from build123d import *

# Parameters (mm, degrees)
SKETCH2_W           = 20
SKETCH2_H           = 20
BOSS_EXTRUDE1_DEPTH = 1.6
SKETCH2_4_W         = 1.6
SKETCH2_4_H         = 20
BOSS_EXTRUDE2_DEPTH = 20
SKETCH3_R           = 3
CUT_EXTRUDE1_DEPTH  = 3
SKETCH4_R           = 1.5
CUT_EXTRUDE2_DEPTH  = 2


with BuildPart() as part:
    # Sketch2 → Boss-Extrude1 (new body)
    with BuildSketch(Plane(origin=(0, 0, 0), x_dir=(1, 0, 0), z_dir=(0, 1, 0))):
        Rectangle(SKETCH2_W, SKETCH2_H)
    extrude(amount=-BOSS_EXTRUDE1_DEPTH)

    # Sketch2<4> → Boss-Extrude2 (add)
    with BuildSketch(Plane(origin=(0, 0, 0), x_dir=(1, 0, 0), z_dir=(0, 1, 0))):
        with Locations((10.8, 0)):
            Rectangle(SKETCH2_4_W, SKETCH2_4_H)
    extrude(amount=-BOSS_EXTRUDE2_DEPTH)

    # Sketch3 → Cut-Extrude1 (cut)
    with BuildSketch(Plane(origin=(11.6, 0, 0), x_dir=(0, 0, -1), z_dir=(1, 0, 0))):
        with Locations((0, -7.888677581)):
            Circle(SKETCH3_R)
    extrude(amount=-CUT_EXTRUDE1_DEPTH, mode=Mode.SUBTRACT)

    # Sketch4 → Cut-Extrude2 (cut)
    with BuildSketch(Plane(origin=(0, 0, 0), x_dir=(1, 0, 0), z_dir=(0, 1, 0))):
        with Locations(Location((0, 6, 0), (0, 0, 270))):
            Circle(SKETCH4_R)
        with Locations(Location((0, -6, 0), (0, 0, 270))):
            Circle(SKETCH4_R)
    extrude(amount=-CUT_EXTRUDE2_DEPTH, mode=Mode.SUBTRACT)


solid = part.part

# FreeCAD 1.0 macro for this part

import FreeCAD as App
import Part
import Sketcher
Q = App.Units.Quantity

doc = App.newDocument("Part")
body = doc.addObject("PartDesign::Body", "Body")

sketch1 = doc.addObject("Sketcher::SketchObject", "Sketch")
body.addObject(sketch1)
sketch1.AttachmentSupport = (doc.XZ_Plane, [""])
sketch1.MapMode = "FlatFace"
sketch1.addGeometry([
    Part.LineSegment(App.Vector(-10, -10, 0), App.Vector(-10, 10, 0)),
    Part.LineSegment(App.Vector(-10, 10, 0), App.Vector(10, 10, 0)),
    Part.LineSegment(App.Vector(10, 10, 0), App.Vector(10, -10, 0)),
    Part.LineSegment(App.Vector(10, -10, 0), App.Vector(-10, -10, 0)),
], False)
sketch1.addConstraint([
    Sketcher.Constraint("Coincident", 0, 2, 1, 1),
    Sketcher.Constraint("Coincident", 1, 2, 2, 1),
    Sketcher.Constraint("Coincident", 2, 2, 3, 1),
    Sketcher.Constraint("Coincident", 3, 2, 0, 1),
    Sketcher.Constraint("Vertical", 0),
    Sketcher.Constraint("Horizontal", 1),
    Sketcher.Constraint("Vertical", 2),
    Sketcher.Constraint("Horizontal", 3),
    Sketcher.Constraint("Symmetric", 0, 2, 2, 2, -1, 1),
    Sketcher.Constraint("Equal", 3, 0),
    Sketcher.Constraint("DistanceX", 1, 1, 1, 2, Q("20 mm")),
])
pad1 = doc.addObject("PartDesign::Pad", "Pad")
body.addObject(pad1)
pad1.Profile = sketch1
pad1.Length = 1.6

sketch2 = doc.addObject("Sketcher::SketchObject", "Sketch001")
body.addObject(sketch2)
sketch2.AttachmentSupport = (doc.XZ_Plane, [""])
sketch2.MapMode = "FlatFace"
sketch2.addGeometry([
    Part.LineSegment(App.Vector(10, -10, 0), App.Vector(10, 10, 0)),
    Part.LineSegment(App.Vector(10, 10, 0), App.Vector(11.6, 10, 0)),
    Part.LineSegment(App.Vector(11.6, 10, 0), App.Vector(11.6, -10, 0)),
    Part.LineSegment(App.Vector(11.6, -10, 0), App.Vector(10, -10, 0)),
], False)
sketch2.addConstraint([
    Sketcher.Constraint("Coincident", 0, 2, 1, 1),
    Sketcher.Constraint("Coincident", 1, 2, 2, 1),
    Sketcher.Constraint("Coincident", 2, 2, 3, 1),
    Sketcher.Constraint("Coincident", 3, 2, 0, 1),
    Sketcher.Constraint("Vertical", 0),
    Sketcher.Constraint("Horizontal", 1),
    Sketcher.Constraint("Vertical", 2),
    Sketcher.Constraint("Horizontal", 3),
    Sketcher.Constraint("DistanceY", 0, 1, 0, 2, Q("20 mm")),
    Sketcher.Constraint("DistanceX", 1, 1, 1, 2, Q("1.6 mm")),
    Sketcher.Constraint("DistanceX", -1, 1, 0, 2, Q("10 mm")),
    Sketcher.Constraint("DistanceY", -1, 1, 0, 2, Q("10 mm")),
])
pad2 = doc.addObject("PartDesign::Pad", "Pad001")
body.addObject(pad2)
pad2.Profile = sketch2
pad2.Length = 20

sketch3 = doc.addObject("Sketcher::SketchObject", "Sketch002")
body.addObject(sketch3)
sketch3.AttachmentSupport = (doc.YZ_Plane, [""])
sketch3.MapMode = "FlatFace"
sketch3.AttachmentOffset = App.Placement(App.Vector(0, 0, 11.6), App.Rotation())
sketch3.addGeometry(Part.Circle(App.Vector(-7.9, 0, 0), App.Vector(0, 0, 1), 3), False)
sketch3.addConstraint([
    Sketcher.Constraint("PointOnObject", 0, 3, -1),
    Sketcher.Constraint("Diameter", 0, Q("6 mm")),
    Sketcher.Constraint("DistanceX", 0, 3, -1, 1, Q("7.888678 mm")),
])
pocket1 = doc.addObject("PartDesign::Pocket", "Pocket")
body.addObject(pocket1)
pocket1.Profile = sketch3
pocket1.Length = 3

sketch4 = doc.addObject("Sketcher::SketchObject", "Sketch003")
body.addObject(sketch4)
sketch4.AttachmentSupport = (doc.XZ_Plane, [""])
sketch4.MapMode = "FlatFace"
sketch4.addGeometry([
    Part.Circle(App.Vector(0, -6, 0), App.Vector(0, 0, 1), 1.5),
    Part.Circle(App.Vector(0, 6, 0), App.Vector(0, 0, 1), 1.5),
], False)
sketch4.addConstraint([
    Sketcher.Constraint("Equal", 0, 1),
    Sketcher.Constraint("Symmetric", 0, 3, 1, 3, -1, 1),
    Sketcher.Constraint("PointOnObject", 0, 3, -2),
    Sketcher.Constraint("Diameter", 0, Q("3 mm")),
    Sketcher.Constraint("DistanceY", 0, 3, -1, 1, Q("6 mm")),
])
pocket2 = doc.addObject("PartDesign::Pocket", "Pocket001")
body.addObject(pocket2)
pocket2.Profile = sketch4
pocket2.Length = 2
pocket2.Reversed = True

doc.recompute()
